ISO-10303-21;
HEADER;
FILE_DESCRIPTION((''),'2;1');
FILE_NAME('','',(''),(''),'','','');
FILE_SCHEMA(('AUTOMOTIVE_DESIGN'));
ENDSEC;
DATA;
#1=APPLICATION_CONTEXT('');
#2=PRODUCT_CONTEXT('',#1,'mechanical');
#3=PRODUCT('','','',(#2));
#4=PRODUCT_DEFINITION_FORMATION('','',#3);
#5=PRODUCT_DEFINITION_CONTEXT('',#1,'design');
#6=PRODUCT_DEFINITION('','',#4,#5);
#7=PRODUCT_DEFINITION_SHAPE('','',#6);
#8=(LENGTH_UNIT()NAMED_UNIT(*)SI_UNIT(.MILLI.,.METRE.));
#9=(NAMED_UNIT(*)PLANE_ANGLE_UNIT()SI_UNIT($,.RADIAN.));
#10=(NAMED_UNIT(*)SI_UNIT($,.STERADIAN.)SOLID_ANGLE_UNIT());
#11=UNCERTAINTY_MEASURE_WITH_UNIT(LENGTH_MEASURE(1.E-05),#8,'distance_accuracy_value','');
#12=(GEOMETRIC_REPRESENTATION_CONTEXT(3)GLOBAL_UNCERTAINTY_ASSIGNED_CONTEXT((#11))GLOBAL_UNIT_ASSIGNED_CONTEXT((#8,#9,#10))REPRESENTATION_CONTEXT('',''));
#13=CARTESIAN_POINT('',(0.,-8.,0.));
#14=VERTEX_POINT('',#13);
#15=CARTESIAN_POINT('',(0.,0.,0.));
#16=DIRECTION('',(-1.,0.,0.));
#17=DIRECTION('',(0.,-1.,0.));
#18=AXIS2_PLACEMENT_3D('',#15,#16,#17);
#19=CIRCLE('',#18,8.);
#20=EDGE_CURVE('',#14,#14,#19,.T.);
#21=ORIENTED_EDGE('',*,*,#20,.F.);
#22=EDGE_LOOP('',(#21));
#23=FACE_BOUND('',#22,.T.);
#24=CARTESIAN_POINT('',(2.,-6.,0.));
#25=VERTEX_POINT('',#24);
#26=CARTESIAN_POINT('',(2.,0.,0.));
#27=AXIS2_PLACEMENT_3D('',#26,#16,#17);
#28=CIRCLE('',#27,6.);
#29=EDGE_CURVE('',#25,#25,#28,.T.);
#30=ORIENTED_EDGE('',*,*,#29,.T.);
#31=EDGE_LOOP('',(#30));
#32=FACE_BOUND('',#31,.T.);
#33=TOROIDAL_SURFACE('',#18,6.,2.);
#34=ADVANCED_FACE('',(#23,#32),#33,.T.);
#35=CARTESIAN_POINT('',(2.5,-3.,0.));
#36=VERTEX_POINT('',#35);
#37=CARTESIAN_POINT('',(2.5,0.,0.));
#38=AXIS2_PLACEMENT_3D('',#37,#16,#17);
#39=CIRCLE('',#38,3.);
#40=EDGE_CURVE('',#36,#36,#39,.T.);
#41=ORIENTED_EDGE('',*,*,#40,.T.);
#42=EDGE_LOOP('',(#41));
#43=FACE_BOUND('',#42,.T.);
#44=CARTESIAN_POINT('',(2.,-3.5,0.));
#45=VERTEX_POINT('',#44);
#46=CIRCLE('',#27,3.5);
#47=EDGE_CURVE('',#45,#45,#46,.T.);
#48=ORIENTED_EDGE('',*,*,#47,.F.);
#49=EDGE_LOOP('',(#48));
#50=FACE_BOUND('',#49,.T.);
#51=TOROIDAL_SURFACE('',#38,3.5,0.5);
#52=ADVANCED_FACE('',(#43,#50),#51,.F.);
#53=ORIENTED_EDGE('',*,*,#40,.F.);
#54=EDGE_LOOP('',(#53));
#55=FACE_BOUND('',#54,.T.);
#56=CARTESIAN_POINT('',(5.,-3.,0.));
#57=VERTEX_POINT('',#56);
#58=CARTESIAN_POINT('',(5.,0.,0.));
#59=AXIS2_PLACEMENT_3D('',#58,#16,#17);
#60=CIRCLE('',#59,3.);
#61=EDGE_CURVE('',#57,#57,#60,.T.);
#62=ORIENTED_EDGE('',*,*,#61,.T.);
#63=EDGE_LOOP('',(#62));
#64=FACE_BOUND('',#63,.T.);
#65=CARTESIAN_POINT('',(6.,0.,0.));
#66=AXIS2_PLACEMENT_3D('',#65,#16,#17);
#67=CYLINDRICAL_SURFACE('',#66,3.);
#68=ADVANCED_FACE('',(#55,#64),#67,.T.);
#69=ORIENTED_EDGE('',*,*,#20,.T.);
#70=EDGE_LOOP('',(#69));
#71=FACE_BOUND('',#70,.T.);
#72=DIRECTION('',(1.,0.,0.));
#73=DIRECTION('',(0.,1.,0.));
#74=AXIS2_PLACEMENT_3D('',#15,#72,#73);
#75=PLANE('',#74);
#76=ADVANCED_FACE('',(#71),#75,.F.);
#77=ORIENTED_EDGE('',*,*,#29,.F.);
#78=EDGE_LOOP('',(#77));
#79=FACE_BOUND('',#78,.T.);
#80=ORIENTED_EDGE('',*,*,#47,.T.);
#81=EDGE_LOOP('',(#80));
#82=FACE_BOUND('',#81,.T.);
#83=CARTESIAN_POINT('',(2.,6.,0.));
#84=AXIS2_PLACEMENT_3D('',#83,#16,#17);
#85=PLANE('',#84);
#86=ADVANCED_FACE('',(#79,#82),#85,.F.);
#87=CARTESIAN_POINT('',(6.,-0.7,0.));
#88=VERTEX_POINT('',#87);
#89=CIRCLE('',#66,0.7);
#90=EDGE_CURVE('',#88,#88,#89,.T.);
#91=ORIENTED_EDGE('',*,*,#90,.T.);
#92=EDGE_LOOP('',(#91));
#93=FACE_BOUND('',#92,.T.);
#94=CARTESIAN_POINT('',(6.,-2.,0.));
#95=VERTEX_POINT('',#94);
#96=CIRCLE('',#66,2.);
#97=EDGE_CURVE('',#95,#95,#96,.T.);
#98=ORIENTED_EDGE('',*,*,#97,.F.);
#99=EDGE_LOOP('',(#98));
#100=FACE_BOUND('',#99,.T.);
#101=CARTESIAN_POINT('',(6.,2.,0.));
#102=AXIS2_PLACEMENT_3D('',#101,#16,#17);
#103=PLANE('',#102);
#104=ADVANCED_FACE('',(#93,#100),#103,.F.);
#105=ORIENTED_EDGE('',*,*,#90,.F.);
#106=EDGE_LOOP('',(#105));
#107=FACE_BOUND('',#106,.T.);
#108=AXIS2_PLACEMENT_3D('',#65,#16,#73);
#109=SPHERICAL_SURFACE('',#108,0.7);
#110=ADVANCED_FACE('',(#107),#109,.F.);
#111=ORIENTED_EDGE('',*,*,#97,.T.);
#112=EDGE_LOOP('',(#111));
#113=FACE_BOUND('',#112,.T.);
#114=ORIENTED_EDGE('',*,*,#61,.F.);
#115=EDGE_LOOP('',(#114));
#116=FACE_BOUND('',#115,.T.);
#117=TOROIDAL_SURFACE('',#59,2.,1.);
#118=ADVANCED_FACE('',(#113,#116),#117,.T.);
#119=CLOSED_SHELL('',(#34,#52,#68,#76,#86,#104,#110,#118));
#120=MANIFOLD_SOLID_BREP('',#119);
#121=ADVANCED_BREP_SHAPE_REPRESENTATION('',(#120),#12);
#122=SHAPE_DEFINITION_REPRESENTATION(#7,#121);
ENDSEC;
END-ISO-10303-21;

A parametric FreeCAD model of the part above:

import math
import FreeCAD as App
import Part
import Sketcher
Q = App.Units.Quantity

doc = App.newDocument("Part")
body = doc.addObject("PartDesign::Body", "Body")

# Sketch on XY plane
sketch1 = doc.addObject("Sketcher::SketchObject", "Sketch")
body.addObject(sketch1)
sketch1.AttachmentSupport = (doc.XY_Plane, [""])
sketch1.MapMode = "FlatFace"
sketch1.addGeometry(Part.LineSegment(App.Vector(0, 8, 0), App.Vector(0, 0, 0)), False)
sketch1.addGeometry(Part.LineSegment(App.Vector(0, 0, 0), App.Vector(5.3, 0, 0)), False)
sketch1.addGeometry(Part.ArcOfCircle(Part.Circle(App.Vector(6, 0, 0), App.Vector(0, 0, 1), 0.7), math.radians(90), math.radians(180)), False)
sketch1.addGeometry(Part.LineSegment(App.Vector(6, 0.7, 0), App.Vector(6, 2, 0)), False)
sketch1.addGeometry(Part.ArcOfCircle(Part.Circle(App.Vector(5, 2, 0), App.Vector(0, 0, 1), 1), math.radians(0), math.radians(90)), False)
sketch1.addGeometry(Part.LineSegment(App.Vector(5, 3, 0), App.Vector(2.5, 3, 0)), False)
sketch1.addGeometry(Part.ArcOfCircle(Part.Circle(App.Vector(2.5, 3.5, 0), App.Vector(0, 0, 1), 0.5), math.radians(180), math.radians(270)), False)
sketch1.addGeometry(Part.LineSegment(App.Vector(2, 3.5, 0), App.Vector(2, 6, 0)), False)
sketch1.addGeometry(Part.ArcOfCircle(Part.Circle(App.Vector(0, 6, 0), App.Vector(0, 0, 1), 2), math.radians(0), math.radians(90)), False)
sketch1.addConstraint(Sketcher.Constraint("Coincident", 0, 2, 1, 1))
sketch1.addConstraint(Sketcher.Constraint("Coincident", 1, 2, 2, 2))
sketch1.addConstraint(Sketcher.Constraint("Coincident", 2, 1, 3, 1))
sketch1.addConstraint(Sketcher.Constraint("Tangent", 3, 2, 4, 1))
sketch1.addConstraint(Sketcher.Constraint("Tangent", 4, 2, 5, 1))
sketch1.addConstraint(Sketcher.Constraint("Tangent", 5, 2, 6, 2))
sketch1.addConstraint(Sketcher.Constraint("Tangent", 6, 1, 7, 1))
sketch1.addConstraint(Sketcher.Constraint("Tangent", 7, 2, 8, 1))
sketch1.addConstraint(Sketcher.Constraint("Coincident", 8, 2, 0, 1))
sketch1.addConstraint(Sketcher.Constraint("Vertical", 0))
sketch1.addConstraint(Sketcher.Constraint("Horizontal", 1))
sketch1.addConstraint(Sketcher.Constraint("Vertical", 3))
sketch1.addConstraint(Sketcher.Constraint("Horizontal", 5))
sketch1.addConstraint(Sketcher.Constraint("Vertical", 7))
sketch1.addConstraint(Sketcher.Constraint("Coincident", 0, 2, -1, 1))
sketch1.addConstraint(Sketcher.Constraint("PointOnObject", 2, 3, -1))
sketch1.addConstraint(Sketcher.Constraint("PointOnObject", 8, 3, -2))
sketch1.addConstraint(Sketcher.Constraint("Equal", 5, 7))
sketch1.addConstraint(Sketcher.Constraint("Radius", 4, Q("1 mm")))
sketch1.addConstraint(Sketcher.Constraint("Radius", 8, Q("2 mm")))
sketch1.addConstraint(Sketcher.Constraint("Radius", 2, Q("0.7 mm")))
sketch1.addConstraint(Sketcher.Constraint("Radius", 6, Q("0.5 mm")))
sketch1.addConstraint(Sketcher.Constraint("DistanceY", 0, 2, 0, 1, Q("8 mm")))
sketch1.addConstraint(Sketcher.Constraint("DistanceX", 1, 1, 1, 2, Q("5.3 mm")))
sketch1.addConstraint(Sketcher.Constraint("DistanceX", 5, 2, 5, 1, Q("2.5 mm")))
revolution = doc.addObject("PartDesign::Revolution", "Revolution")
body.addObject(revolution)
revolution.Profile = sketch1
revolution.ReferenceAxis = (sketch1, ["H_Axis"])
revolution.Angle = 360

doc.recompute()
